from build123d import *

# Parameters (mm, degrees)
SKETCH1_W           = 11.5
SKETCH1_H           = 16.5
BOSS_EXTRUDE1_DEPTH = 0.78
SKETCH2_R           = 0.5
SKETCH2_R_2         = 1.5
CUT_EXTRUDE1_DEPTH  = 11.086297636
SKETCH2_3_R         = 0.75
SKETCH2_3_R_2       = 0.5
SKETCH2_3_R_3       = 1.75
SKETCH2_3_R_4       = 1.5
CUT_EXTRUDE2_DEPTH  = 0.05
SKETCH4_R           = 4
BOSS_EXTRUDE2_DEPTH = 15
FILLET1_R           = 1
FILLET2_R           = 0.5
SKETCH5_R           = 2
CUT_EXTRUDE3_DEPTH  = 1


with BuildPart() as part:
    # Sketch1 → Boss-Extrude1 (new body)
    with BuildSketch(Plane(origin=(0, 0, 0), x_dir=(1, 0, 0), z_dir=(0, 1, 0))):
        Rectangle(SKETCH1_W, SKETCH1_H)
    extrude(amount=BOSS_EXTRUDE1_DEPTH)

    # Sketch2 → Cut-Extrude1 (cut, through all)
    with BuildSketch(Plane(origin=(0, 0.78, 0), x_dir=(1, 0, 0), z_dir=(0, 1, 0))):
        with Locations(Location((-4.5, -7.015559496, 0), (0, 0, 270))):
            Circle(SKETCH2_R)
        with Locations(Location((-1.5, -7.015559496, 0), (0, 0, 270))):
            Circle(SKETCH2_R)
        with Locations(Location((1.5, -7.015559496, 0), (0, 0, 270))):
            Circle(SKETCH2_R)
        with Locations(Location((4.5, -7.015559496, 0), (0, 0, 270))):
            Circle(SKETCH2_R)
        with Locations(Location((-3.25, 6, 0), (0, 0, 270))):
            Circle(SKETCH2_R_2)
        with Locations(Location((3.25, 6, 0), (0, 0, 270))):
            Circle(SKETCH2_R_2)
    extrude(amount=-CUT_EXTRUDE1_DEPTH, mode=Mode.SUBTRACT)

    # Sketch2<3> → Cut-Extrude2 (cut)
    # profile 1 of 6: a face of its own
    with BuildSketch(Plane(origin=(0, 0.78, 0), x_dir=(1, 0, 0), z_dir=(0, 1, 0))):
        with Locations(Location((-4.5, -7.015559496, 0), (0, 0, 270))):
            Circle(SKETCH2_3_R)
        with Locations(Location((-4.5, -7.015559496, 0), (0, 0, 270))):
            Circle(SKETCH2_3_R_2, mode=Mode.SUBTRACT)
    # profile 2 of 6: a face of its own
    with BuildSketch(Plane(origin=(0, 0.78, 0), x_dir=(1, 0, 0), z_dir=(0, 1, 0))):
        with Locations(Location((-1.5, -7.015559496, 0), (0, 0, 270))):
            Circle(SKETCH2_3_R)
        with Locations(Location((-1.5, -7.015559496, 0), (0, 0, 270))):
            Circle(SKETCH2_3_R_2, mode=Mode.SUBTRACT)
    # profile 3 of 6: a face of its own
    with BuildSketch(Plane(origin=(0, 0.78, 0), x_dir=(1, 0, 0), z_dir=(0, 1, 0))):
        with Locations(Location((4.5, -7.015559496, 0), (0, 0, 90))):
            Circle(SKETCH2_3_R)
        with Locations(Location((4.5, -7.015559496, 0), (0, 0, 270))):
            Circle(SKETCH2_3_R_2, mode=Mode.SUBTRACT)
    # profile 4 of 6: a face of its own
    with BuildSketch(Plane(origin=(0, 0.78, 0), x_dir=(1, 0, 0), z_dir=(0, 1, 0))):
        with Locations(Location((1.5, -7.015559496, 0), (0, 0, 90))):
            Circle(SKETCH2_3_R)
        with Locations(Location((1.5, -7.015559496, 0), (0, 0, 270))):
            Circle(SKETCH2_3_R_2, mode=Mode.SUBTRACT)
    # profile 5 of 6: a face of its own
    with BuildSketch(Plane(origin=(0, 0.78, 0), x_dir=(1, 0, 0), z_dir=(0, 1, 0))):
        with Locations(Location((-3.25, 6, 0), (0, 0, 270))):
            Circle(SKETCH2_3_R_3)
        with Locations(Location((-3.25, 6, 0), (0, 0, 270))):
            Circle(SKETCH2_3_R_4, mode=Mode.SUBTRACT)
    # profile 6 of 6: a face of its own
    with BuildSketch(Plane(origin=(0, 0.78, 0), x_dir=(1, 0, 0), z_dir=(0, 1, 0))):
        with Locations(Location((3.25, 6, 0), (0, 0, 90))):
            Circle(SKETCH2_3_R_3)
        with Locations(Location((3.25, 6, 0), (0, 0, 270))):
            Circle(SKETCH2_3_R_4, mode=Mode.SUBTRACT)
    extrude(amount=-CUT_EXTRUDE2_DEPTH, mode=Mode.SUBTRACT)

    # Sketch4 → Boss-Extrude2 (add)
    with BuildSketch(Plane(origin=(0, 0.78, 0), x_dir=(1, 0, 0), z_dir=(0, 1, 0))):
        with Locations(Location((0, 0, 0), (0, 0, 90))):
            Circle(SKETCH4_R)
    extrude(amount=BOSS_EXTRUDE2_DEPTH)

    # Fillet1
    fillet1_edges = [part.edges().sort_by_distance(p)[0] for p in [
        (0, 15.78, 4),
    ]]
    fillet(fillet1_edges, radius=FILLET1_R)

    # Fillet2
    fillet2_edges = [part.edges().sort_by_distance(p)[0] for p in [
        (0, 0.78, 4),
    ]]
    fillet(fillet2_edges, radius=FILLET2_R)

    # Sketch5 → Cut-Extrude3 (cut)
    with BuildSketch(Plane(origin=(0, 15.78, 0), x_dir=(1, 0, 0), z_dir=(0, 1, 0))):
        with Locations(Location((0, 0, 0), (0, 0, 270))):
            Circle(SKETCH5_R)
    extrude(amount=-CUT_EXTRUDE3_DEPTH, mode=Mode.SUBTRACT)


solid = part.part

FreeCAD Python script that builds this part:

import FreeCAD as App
import Part
import Sketcher
from FreeCAD import Vector


def edges_at(feature, points):
    """Names of the edges that pass closest to the given points."""
    edges = feature.Shape.Edges
    near = lambda p: min(range(len(edges)), key=lambda i: edges[i].distToShape(Part.Vertex(*p))[0])
    return sorted({f"Edge{near(p) + 1}" for p in points})


def add_polygon(sketch, points):
    """Adds a closed chain of lines whose ends are joined by coincident constraints."""
    first, n = sketch.GeometryCount, len(points)
    for a, b in zip(points, points[1:] + points[:1]):
        sketch.addGeometry(Part.LineSegment(App.Vector(*a, 0), App.Vector(*b, 0)), False)
    for i in range(n):
        sketch.addConstraint(Sketcher.Constraint("Coincident", first + i, 2, first + (i + 1) % n, 1))

doc = App.newDocument("Part")
body = doc.addObject("PartDesign::Body", "Body")

# Sketch on XZ plane
sketch1 = body.newObject("Sketcher::SketchObject", "Sketch")
sketch1.AttachmentSupport = (doc.getObject("XZ_Plane"), [""])
sketch1.MapMode = "FlatFace"
add_polygon(sketch1, [(-6, -8), (-6, 8), (6, 8), (6, -8)])  # lines 0-3
sketch1.addConstraint([
    Sketcher.Constraint("Vertical", 0),
    Sketcher.Constraint("Horizontal", 1),
    Sketcher.Constraint("Vertical", 2),
    Sketcher.Constraint("Horizontal", 3),
    Sketcher.Constraint("Symmetric", 0, 2, 2, 2, -1, 1),
    Sketcher.Constraint("DistanceX", 1, 1, 1, 2, 11.5),
    Sketcher.Constraint("DistanceY", 0, 1, 0, 2, 16.5),
])
pad1 = body.newObject("PartDesign::Pad", "Pad")
pad1.Profile = sketch1
pad1.Length = 0.78
pad1.Reversed = True

# Sketch on XZ plane
sketch2 = body.newObject("Sketcher::SketchObject", "Sketch001")
sketch2.AttachmentSupport = (doc.getObject("XZ_Plane"), [""])
sketch2.MapMode = "FlatFace"
sketch2.AttachmentOffset = App.Placement(Vector(0, 0, -0.78), App.Rotation())
sketch2.addGeometry([
    Part.Circle(Vector(-4.5, 7, 0), Vector(0, 0, 1), 0.5),  # 0
    Part.Circle(Vector(-1.5, 7, 0), Vector(0, 0, 1), 0.5),  # 1
    Part.Circle(Vector(1.5, 7, 0), Vector(0, 0, 1), 0.5),  # 2
    Part.Circle(Vector(4.5, 7, 0), Vector(0, 0, 1), 0.5),  # 3
    Part.Circle(Vector(-3.2, -6, 0), Vector(0, 0, 1), 1.5),  # 4
    Part.Circle(Vector(3.2, -6, 0), Vector(0, 0, 1), 1.5),  # 5
], False)
sketch2.addConstraint([
    Sketcher.Constraint("Equal", 0, 1),
    Sketcher.Constraint("Equal", 1, 2),
    Sketcher.Constraint("Equal", 2, 3),
    Sketcher.Constraint("Equal", 4, 5),
    Sketcher.Constraint("Symmetric", 1, 3, 2, 3, -2),
    Sketcher.Constraint("Symmetric", 0, 3, 3, 3, -2),
    Sketcher.Constraint("Symmetric", 4, 3, 5, 3, -2),
    Sketcher.Constraint("Horizontal", 0, 3, 1, 3),
    Sketcher.Constraint("Diameter", 0, 1.0),
    Sketcher.Constraint("Diameter", 4, 3.0),
    Sketcher.Constraint("DistanceY", 4, 3, -1, 1, 6.0),
    Sketcher.Constraint("DistanceX", 0, 3, 1, 3, 3.0),
    Sketcher.Constraint("DistanceX", 1, 3, 2, 3, 3.0),
    Sketcher.Constraint("DistanceX", 4, 3, 5, 3, 6.5),
    Sketcher.Constraint("DistanceY", -1, 1, 0, 3, 7.015559),
])
pocket1 = body.newObject("PartDesign::Pocket", "Pocket")
pocket1.Profile = sketch2
pocket1.Type = "ThroughAll"
pocket1.Reversed = True

# Sketch on XZ plane
sketch3 = body.newObject("Sketcher::SketchObject", "Sketch002")
sketch3.AttachmentSupport = (doc.getObject("XZ_Plane"), [""])
sketch3.MapMode = "FlatFace"
sketch3.AttachmentOffset = App.Placement(Vector(0, 0, -0.78), App.Rotation())
sketch3.addGeometry([
    Part.Circle(Vector(-4.5, 7, 0), Vector(0, 0, 1), 0.8),  # 0
    Part.Circle(Vector(-4.5, 7, 0), Vector(0, 0, 1), 0.5),  # 1
    Part.Circle(Vector(-1.5, 7, 0), Vector(0, 0, 1), 0.8),  # 2
    Part.Circle(Vector(-1.5, 7, 0), Vector(0, 0, 1), 0.5),  # 3
    Part.Circle(Vector(4.5, 7, 0), Vector(0, 0, 1), 0.8),  # 4
    Part.Circle(Vector(4.5, 7, 0), Vector(0, 0, 1), 0.5),  # 5
    Part.Circle(Vector(1.5, 7, 0), Vector(0, 0, 1), 0.8),  # 6
    Part.Circle(Vector(1.5, 7, 0), Vector(0, 0, 1), 0.5),  # 7
    Part.Circle(Vector(-3.2, -6, 0), Vector(0, 0, 1), 1.8),  # 8
    Part.Circle(Vector(-3.2, -6, 0), Vector(0, 0, 1), 1.5),  # 9
    Part.Circle(Vector(3.2, -6, 0), Vector(0, 0, 1), 1.8),  # 10
    Part.Circle(Vector(3.2, -6, 0), Vector(0, 0, 1), 1.5),  # 11
], False)
sketch3.addConstraint([
    Sketcher.Constraint("Coincident", 1, 3, 0, 3),
    Sketcher.Constraint("Coincident", 3, 3, 2, 3),
    Sketcher.Constraint("Coincident", 5, 3, 4, 3),
    Sketcher.Constraint("Coincident", 7, 3, 6, 3),
    Sketcher.Constraint("Coincident", 9, 3, 8, 3),
    Sketcher.Constraint("Coincident", 11, 3, 10, 3),
    Sketcher.Constraint("Equal", 0, 2),
    Sketcher.Constraint("Equal", 1, 3),
    Sketcher.Constraint("Equal", 2, 4),
    Sketcher.Constraint("Equal", 3, 5),
    Sketcher.Constraint("Equal", 4, 6),
    Sketcher.Constraint("Equal", 5, 7),
    Sketcher.Constraint("Equal", 8, 10),
    Sketcher.Constraint("Equal", 9, 11),
    Sketcher.Constraint("Symmetric", 0, 3, 4, 3, -2),
    Sketcher.Constraint("Symmetric", 2, 3, 6, 3, -2),
    Sketcher.Constraint("Symmetric", 8, 3, 10, 3, -2),
    Sketcher.Constraint("Horizontal", 1, 3, 2, 3),
    Sketcher.Constraint("Diameter", 1, 1.0),
    Sketcher.Constraint("Diameter", 9, 3.0),
    Sketcher.Constraint("Diameter", 0, 1.5),
    Sketcher.Constraint("Diameter", 8, 3.5),
    Sketcher.Constraint("DistanceY", 8, 3, -1, 1, 6.0),
    Sketcher.Constraint("DistanceX", 0, 3, 2, 3, 3.0),
    Sketcher.Constraint("DistanceX", 2, 3, 4, 3, 6.0),
    Sketcher.Constraint("DistanceX", 8, 3, 10, 3, 6.5),
    Sketcher.Constraint("DistanceY", -1, 1, 0, 3, 7.015559),
])
pocket2 = body.newObject("PartDesign::Pocket", "Pocket001")
pocket2.Profile = sketch3
pocket2.Length = 0.05
pocket2.Reversed = True

# Sketch on XZ plane
sketch4 = body.newObject("Sketcher::SketchObject", "Sketch003")
sketch4.AttachmentSupport = (doc.getObject("XZ_Plane"), [""])
sketch4.MapMode = "FlatFace"
sketch4.AttachmentOffset = App.Placement(Vector(0, 0, -0.78), App.Rotation())
sketch4.addGeometry(Part.Circle(Vector(0, 0, 0), Vector(0, 0, 1), 4), False)
sketch4.addConstraint([
    Sketcher.Constraint("Coincident", 0, 3, -1, 1),
    Sketcher.Constraint("Diameter", 0, 8.0),
])
pad2 = body.newObject("PartDesign::Pad", "Pad001")
pad2.Profile = sketch4
pad2.Length = 15
pad2.Reversed = True
doc.recompute()

fillet = body.newObject("PartDesign::Fillet", "Fillet")
fillet.Base = (pad2, edges_at(pad2, [(0, 15.78, 4)]))
fillet.Radius = 1
doc.recompute()

fillet2 = body.newObject("PartDesign::Fillet", "Fillet001")
fillet2.Base = (fillet, edges_at(fillet, [(0, 0.78, 4)]))
fillet2.Radius = 0.5

# Sketch on XZ plane
sketch5 = body.newObject("Sketcher::SketchObject", "Sketch004")
sketch5.AttachmentSupport = (doc.getObject("XZ_Plane"), [""])
sketch5.MapMode = "FlatFace"
sketch5.AttachmentOffset = App.Placement(Vector(0, 0, -15.78), App.Rotation())
sketch5.addGeometry(Part.Circle(Vector(0, 0, 0), Vector(0, 0, 1), 2), False)
sketch5.addConstraint([
    Sketcher.Constraint("Coincident", 0, 3, -1, 1),
    Sketcher.Constraint("Diameter", 0, 4.0),
])
pocket3 = body.newObject("PartDesign::Pocket", "Pocket002")
pocket3.Profile = sketch5
pocket3.Length = 1
pocket3.Reversed = True

doc.recompute()
